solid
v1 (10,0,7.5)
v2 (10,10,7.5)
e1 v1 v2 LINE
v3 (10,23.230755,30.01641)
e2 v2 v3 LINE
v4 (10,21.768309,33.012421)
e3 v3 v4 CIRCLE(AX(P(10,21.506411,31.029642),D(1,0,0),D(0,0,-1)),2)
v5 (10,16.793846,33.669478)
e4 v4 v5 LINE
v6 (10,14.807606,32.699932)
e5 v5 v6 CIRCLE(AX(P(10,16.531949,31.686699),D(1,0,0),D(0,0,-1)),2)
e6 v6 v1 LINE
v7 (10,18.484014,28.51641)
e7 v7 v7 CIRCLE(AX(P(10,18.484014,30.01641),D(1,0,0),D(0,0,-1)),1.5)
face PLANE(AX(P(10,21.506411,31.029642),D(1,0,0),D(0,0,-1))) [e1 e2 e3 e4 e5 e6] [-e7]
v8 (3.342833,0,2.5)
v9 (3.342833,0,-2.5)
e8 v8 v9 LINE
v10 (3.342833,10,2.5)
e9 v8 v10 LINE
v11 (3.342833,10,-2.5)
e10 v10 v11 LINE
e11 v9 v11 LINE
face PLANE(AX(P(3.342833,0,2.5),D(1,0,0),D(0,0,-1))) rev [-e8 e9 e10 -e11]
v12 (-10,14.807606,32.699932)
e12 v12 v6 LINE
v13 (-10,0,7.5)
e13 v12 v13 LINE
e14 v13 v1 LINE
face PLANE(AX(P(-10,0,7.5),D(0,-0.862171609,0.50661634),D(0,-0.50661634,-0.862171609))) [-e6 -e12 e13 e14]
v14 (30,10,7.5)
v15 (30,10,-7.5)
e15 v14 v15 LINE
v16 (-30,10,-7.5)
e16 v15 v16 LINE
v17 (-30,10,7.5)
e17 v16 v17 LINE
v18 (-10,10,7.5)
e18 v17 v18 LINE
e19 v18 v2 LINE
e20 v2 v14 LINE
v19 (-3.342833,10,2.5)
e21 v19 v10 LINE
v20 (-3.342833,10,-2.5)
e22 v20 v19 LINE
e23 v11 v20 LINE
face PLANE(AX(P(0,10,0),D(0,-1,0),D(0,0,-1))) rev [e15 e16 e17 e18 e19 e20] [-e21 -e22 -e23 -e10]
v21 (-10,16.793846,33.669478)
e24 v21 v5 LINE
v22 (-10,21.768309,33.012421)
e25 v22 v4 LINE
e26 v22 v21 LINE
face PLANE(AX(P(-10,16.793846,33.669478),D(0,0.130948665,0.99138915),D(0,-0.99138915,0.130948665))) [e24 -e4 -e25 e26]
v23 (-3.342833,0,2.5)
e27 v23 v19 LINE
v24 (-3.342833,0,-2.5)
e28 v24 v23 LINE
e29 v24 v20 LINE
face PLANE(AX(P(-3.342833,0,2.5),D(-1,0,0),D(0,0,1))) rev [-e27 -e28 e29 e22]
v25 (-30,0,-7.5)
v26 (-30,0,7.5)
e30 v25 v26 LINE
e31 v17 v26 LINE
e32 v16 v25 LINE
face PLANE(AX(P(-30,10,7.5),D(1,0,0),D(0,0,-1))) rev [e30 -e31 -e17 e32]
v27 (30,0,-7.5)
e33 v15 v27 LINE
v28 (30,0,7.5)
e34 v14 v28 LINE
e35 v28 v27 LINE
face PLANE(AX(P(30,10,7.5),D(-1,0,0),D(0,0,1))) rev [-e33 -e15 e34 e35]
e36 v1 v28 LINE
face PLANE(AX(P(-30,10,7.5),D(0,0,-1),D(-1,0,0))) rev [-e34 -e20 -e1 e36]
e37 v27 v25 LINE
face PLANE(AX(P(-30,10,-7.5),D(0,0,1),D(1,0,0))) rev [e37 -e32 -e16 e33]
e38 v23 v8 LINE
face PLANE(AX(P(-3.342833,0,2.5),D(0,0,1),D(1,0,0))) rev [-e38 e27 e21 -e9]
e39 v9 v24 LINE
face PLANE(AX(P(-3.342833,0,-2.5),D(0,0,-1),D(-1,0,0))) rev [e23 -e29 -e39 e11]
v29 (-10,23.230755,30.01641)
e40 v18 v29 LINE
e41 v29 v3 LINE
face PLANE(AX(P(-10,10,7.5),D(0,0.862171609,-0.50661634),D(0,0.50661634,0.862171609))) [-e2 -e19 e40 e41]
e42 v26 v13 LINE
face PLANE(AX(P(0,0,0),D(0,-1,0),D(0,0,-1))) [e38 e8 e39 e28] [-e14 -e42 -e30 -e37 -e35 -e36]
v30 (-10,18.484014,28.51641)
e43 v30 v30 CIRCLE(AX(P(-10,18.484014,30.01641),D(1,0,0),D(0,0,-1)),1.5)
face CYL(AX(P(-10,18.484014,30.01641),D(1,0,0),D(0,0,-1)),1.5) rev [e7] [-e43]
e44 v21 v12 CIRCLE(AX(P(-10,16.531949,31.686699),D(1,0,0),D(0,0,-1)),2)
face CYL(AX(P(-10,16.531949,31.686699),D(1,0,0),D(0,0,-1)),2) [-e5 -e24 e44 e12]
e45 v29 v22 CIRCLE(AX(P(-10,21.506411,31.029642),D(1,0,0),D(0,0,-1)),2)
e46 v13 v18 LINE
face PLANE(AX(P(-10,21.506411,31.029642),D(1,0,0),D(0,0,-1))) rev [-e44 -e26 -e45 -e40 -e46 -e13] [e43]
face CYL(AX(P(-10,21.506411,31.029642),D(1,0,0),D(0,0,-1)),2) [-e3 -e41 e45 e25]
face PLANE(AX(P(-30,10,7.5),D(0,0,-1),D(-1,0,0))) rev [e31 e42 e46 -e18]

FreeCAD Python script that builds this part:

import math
import FreeCAD as App
import Part
import Sketcher
Q = App.Units.Quantity

doc = App.newDocument("Part")
body = doc.addObject("PartDesign::Body", "Body")

# Sketch on XZ plane
sketch1 = doc.addObject("Sketcher::SketchObject", "Sketch")
body.addObject(sketch1)
sketch1.AttachmentSupport = (doc.XZ_Plane, [""])
sketch1.MapMode = "FlatFace"
sketch1.addGeometry(Part.LineSegment(App.Vector(-30, -7.5, 0), App.Vector(-30, 7.5, 0)), False)
sketch1.addGeometry(Part.LineSegment(App.Vector(-30, 7.5, 0), App.Vector(30, 7.5, 0)), False)
sketch1.addGeometry(Part.LineSegment(App.Vector(30, 7.5, 0), App.Vector(30, -7.5, 0)), False)
sketch1.addGeometry(Part.LineSegment(App.Vector(30, -7.5, 0), App.Vector(-30, -7.5, 0)), False)
sketch1.addGeometry(Part.Circle(App.Vector(0, 0, 0), App.Vector(0, 0, 1), 3.6), False)
sketch1.addConstraint(Sketcher.Constraint("Coincident", 0, 2, 1, 1))
sketch1.addConstraint(Sketcher.Constraint("Coincident", 1, 2, 2, 1))
sketch1.addConstraint(Sketcher.Constraint("Coincident", 2, 2, 3, 1))
sketch1.addConstraint(Sketcher.Constraint("Coincident", 3, 2, 0, 1))
sketch1.addConstraint(Sketcher.Constraint("Vertical", 0))
sketch1.addConstraint(Sketcher.Constraint("Horizontal", 1))
sketch1.addConstraint(Sketcher.Constraint("Vertical", 2))
sketch1.addConstraint(Sketcher.Constraint("Horizontal", 3))
sketch1.addConstraint(Sketcher.Constraint("Coincident", 4, 3, -1, 1))
sketch1.addConstraint(Sketcher.Constraint("Symmetric", 0, 2, 2, 2, -1, 1))
sketch1.addConstraint(Sketcher.Constraint("DistanceX", 1, 1, 1, 2, Q("60 mm")))
sketch1.addConstraint(Sketcher.Constraint("DistanceY", 0, 1, 0, 2, Q("15 mm")))
sketch1.addConstraint(Sketcher.Constraint("Diameter", 4, Q("7.288659 mm")))
pad1 = doc.addObject("PartDesign::Pad", "Pad")
body.addObject(pad1)
pad1.Profile = sketch1
pad1.Length = 10
pad1.Reversed = True

# Sketch on YZ plane
sketch2 = doc.addObject("Sketcher::SketchObject", "Sketch001")
body.addObject(sketch2)
sketch2.AttachmentSupport = (doc.YZ_Plane, [""])
sketch2.MapMode = "FlatFace"
sketch2.addGeometry(Part.LineSegment(App.Vector(14.8, 32.7, 0), App.Vector(0, 7.5, 0)), False)
sketch2.addGeometry(Part.LineSegment(App.Vector(0, 7.5, 0), App.Vector(10, 7.5, 0)), False)
sketch2.addGeometry(Part.LineSegment(App.Vector(10, 7.5, 0), App.Vector(23.2, 30, 0)), False)
sketch2.addGeometry(Part.ArcOfCircle(Part.Circle(App.Vector(21.5, 31, 0), App.Vector(0, 0, 1), 2), math.radians(-30), math.radians(82)), False)
sketch2.addGeometry(Part.LineSegment(App.Vector(21.8, 33, 0), App.Vector(16.8, 33.7, 0)), False)
sketch2.addGeometry(Part.ArcOfCircle(Part.Circle(App.Vector(16.5, 31.7, 0), App.Vector(0, 0, 1), 2), math.radians(82), math.radians(150)), False)
sketch2.addGeometry(Part.Circle(App.Vector(18.5, 30, 0), App.Vector(0, 0, 1), 1.5), False)
sketch2.addConstraint(Sketcher.Constraint("Coincident", 0, 2, 1, 1))
sketch2.addConstraint(Sketcher.Constraint("Coincident", 1, 2, 2, 1))
sketch2.addConstraint(Sketcher.Constraint("Tangent", 2, 2, 3, 1))
sketch2.addConstraint(Sketcher.Constraint("Tangent", 3, 2, 4, 1))
sketch2.addConstraint(Sketcher.Constraint("Tangent", 4, 2, 5, 1))
sketch2.addConstraint(Sketcher.Constraint("Tangent", 5, 2, 0, 1))
sketch2.addConstraint(Sketcher.Constraint("Horizontal", 1))
sketch2.addConstraint(Sketcher.Constraint("Equal", 3, 5))
sketch2.addConstraint(Sketcher.Constraint("PointOnObject", 0, 2, -2))
sketch2.addConstraint(Sketcher.Constraint("Parallel", 0, 2))
sketch2.addConstraint(Sketcher.Constraint("Horizontal", 6, 3, 2, 2))
sketch2.addConstraint(Sketcher.Constraint("Diameter", 6, Q("3 mm")))
sketch2.addConstraint(Sketcher.Constraint("Radius", 3, Q("2 mm")))
sketch2.addConstraint(Sketcher.Constraint("DistanceX", 1, 1, 1, 2, Q("10 mm")))
sketch2.addConstraint(Sketcher.Constraint("DistanceY", -1, 1, 0, 2, Q("7.5 mm")))
sketch2.addConstraint(Sketcher.Constraint("DistanceY", -1, 1, 5, 3, Q("31.686699 mm")))
sketch2.addConstraint(Sketcher.Constraint("Distance", 0, Q("29.228441 mm")))
sketch2.addConstraint(Sketcher.Constraint("Distance", 4, Q("5.017669 mm")))
sketch2.addConstraint(Sketcher.Constraint("DistanceX", 6, 3, 2, 2, Q("4.74674 mm")))
pad2 = doc.addObject("PartDesign::Pad", "Pad001")
body.addObject(pad2)
pad2.Profile = sketch2
pad2.Type = "TwoLengths"
pad2.Length = 10
pad2.Length2 = 10

# Sketch on XZ plane
sketch3 = doc.addObject("Sketcher::SketchObject", "Sketch002")
body.addObject(sketch3)
sketch3.AttachmentSupport = (doc.XZ_Plane, [""])
sketch3.MapMode = "FlatFace"
sketch3.AttachmentOffset = App.Placement(App.Vector(0, 0, -10), App.Rotation())
sketch3.addGeometry(Part.LineSegment(App.Vector(-3, -2, 0), App.Vector(-3, 2, 0)), False)
sketch3.addGeometry(Part.LineSegment(App.Vector(-3, 2, 0), App.Vector(3, 2, 0)), False)
sketch3.addGeometry(Part.LineSegment(App.Vector(3, 2, 0), App.Vector(3, -2, 0)), False)
sketch3.addGeometry(Part.LineSegment(App.Vector(3, -2, 0), App.Vector(-3, -2, 0)), False)
sketch3.addConstraint(Sketcher.Constraint("Coincident", 0, 2, 1, 1))
sketch3.addConstraint(Sketcher.Constraint("Coincident", 1, 2, 2, 1))
sketch3.addConstraint(Sketcher.Constraint("Coincident", 2, 2, 3, 1))
sketch3.addConstraint(Sketcher.Constraint("Coincident", 3, 2, 0, 1))
sketch3.addConstraint(Sketcher.Constraint("Vertical", 0))
sketch3.addConstraint(Sketcher.Constraint("Horizontal", 1))
sketch3.addConstraint(Sketcher.Constraint("Vertical", 2))
sketch3.addConstraint(Sketcher.Constraint("Horizontal", 3))
sketch3.addConstraint(Sketcher.Constraint("Symmetric", 0, 2, 2, 2, -1, 1))
sketch3.addConstraint(Sketcher.Constraint("DistanceY", 0, 1, 0, 2, Q("5 mm")))
sketch3.addConstraint(Sketcher.Constraint("DistanceX", 1, 1, 1, 2, Q("6.685665 mm")))
pocket1 = doc.addObject("PartDesign::Pocket", "Pocket")
body.addObject(pocket1)
pocket1.Profile = sketch3
pocket1.Length = 10
pocket1.Reversed = True

# Sketch on XZ plane
sketch4 = doc.addObject("Sketcher::SketchObject", "Sketch003")
body.addObject(sketch4)
sketch4.AttachmentSupport = (doc.XZ_Plane, [""])
sketch4.MapMode = "FlatFace"
sketch4.AttachmentOffset = App.Placement(App.Vector(0, 0, -10), App.Rotation())
sketch4.addGeometry(Part.LineSegment(App.Vector(-2.65, -2.5, 0), App.Vector(2.65, -2.5, 0)), False)
sketch4.addGeometry(Part.LineSegment(App.Vector(2.65, -2.5, 0), App.Vector(-0.9, -6.61, 0)), False)
sketch4.addGeometry(Part.LineSegment(App.Vector(-0.9, -6.61, 0), App.Vector(-2.65, -2.5, 0)), False)
sketch4.addGeometry(Part.LineSegment(App.Vector(-3.34, 1.45, 0), App.Vector(-3.34, -1.45, 0)), False)
sketch4.addGeometry(Part.LineSegment(App.Vector(-3.34, -1.45, 0), App.Vector(-3.66, -1.45, 0)), False)
sketch4.addGeometry(Part.LineSegment(App.Vector(-3.66, -1.45, 0), App.Vector(-3.98, 1.23, 0)), False)
sketch4.addGeometry(Part.LineSegment(App.Vector(-3.98, 1.23, 0), App.Vector(-3.34, 1.45, 0)), False)
sketch4.addGeometry(Part.LineSegment(App.Vector(3.34, -1.45, 0), App.Vector(3.34, 1.45, 0)), False)
sketch4.addGeometry(Part.LineSegment(App.Vector(3.34, 1.45, 0), App.Vector(4.45, 1.23, 0)), False)
sketch4.addGeometry(Part.LineSegment(App.Vector(4.45, 1.23, 0), App.Vector(3.97, -1.14, 0)), False)
sketch4.addGeometry(Part.LineSegment(App.Vector(3.97, -1.14, 0), App.Vector(3.34, -1.45, 0)), False)
sketch4.addGeometry(Part.LineSegment(App.Vector(2.65, 2.5, 0), App.Vector(-2.65, 2.5, 0)), False)
sketch4.addGeometry(Part.LineSegment(App.Vector(-2.65, 2.5, 0), App.Vector(-2.37, 3.9, 0)), False)
sketch4.addGeometry(Part.LineSegment(App.Vector(-2.37, 3.9, 0), App.Vector(1.66, 4.07, 0)), False)
sketch4.addGeometry(Part.LineSegment(App.Vector(1.66, 4.07, 0), App.Vector(2.65, 2.5, 0)), False)
sketch4.addConstraint(Sketcher.Constraint("Coincident", 0, 2, 1, 1))
sketch4.addConstraint(Sketcher.Constraint("Coincident", 1, 2, 2, 1))
sketch4.addConstraint(Sketcher.Constraint("Coincident", 2, 2, 0, 1))
sketch4.addConstraint(Sketcher.Constraint("Coincident", 3, 2, 4, 1))
sketch4.addConstraint(Sketcher.Constraint("Coincident", 4, 2, 5, 1))
sketch4.addConstraint(Sketcher.Constraint("Coincident", 5, 2, 6, 1))
sketch4.addConstraint(Sketcher.Constraint("Coincident", 6, 2, 3, 1))
sketch4.addConstraint(Sketcher.Constraint("Coincident", 7, 2, 8, 1))
sketch4.addConstraint(Sketcher.Constraint("Coincident", 8, 2, 9, 1))
sketch4.addConstraint(Sketcher.Constraint("Coincident", 9, 2, 10, 1))
sketch4.addConstraint(Sketcher.Constraint("Coincident", 10, 2, 7, 1))
sketch4.addConstraint(Sketcher.Constraint("Coincident", 11, 2, 12, 1))
sketch4.addConstraint(Sketcher.Constraint("Coincident", 12, 2, 13, 1))
sketch4.addConstraint(Sketcher.Constraint("Coincident", 13, 2, 14, 1))
sketch4.addConstraint(Sketcher.Constraint("Coincident", 14, 2, 11, 1))
sketch4.addConstraint(Sketcher.Constraint("Horizontal", 0))
sketch4.addConstraint(Sketcher.Constraint("Vertical", 3))
sketch4.addConstraint(Sketcher.Constraint("Horizontal", 4))
sketch4.addConstraint(Sketcher.Constraint("Vertical", 7))
sketch4.addConstraint(Sketcher.Constraint("Horizontal", 11))
sketch4.addConstraint(Sketcher.Constraint("Symmetric", 3, 2, 7, 2, -1, 1))
sketch4.addConstraint(Sketcher.Constraint("Symmetric", 0, 2, 11, 2, -1, 1))
sketch4.addConstraint(Sketcher.Constraint("Perpendicular", 8, 9))
sketch4.addConstraint(Sketcher.Constraint("Parallel", 9, 12))
sketch4.addConstraint(Sketcher.Constraint("Horizontal", 6, 2, 7, 2))
sketch4.addConstraint(Sketcher.Constraint("Horizontal", 5, 2, 8, 2))
sketch4.addConstraint(Sketcher.Constraint("Horizontal", 4, 2, 10, 2))
sketch4.addConstraint(Sketcher.Constraint("Vertical", 2, 2, 11, 2))
sketch4.addConstraint(Sketcher.Constraint("Vertical", 0, 2, 14, 2))
sketch4.addConstraint(Sketcher.Constraint("DistanceY", 2, 2, 11, 2, Q("5 mm")))
sketch4.addConstraint(Sketcher.Constraint("DistanceX", 4, 2, 4, 1, Q("0.3207 mm")))
sketch4.addConstraint(Sketcher.Constraint("Distance", 10, Q("0.6994 mm")))
sketch4.addConstraint(Sketcher.Constraint("DistanceX", 0, 1, 0, 2, Q("5.303258 mm")))
sketch4.addConstraint(Sketcher.Constraint("DistanceY", 3, 2, 3, 1, Q("2.902831 mm")))
sketch4.addConstraint(Sketcher.Constraint("DistanceX", 5, 2, 4, 2, Q("0.3207 mm")))
sketch4.addConstraint(Sketcher.Constraint("DistanceX", 6, 2, 12, 2, Q("0.971498 mm")))
sketch4.addConstraint(Sketcher.Constraint("DistanceX", 13, 2, 7, 2, Q("1.681502 mm")))
sketch4.addConstraint(Sketcher.Constraint("DistanceX", 13, 2, 14, 2, Q("0.990298 mm")))
sketch4.addConstraint(Sketcher.Constraint("Distance", 5, Q("2.700262 mm")))
sketch4.addConstraint(Sketcher.Constraint("Distance", 8, Q("1.126781 mm")))
sketch4.addConstraint(Sketcher.Constraint("DistanceX", 1, 2, -1, 1, Q("0.901511 mm")))
sketch4.addConstraint(Sketcher.Constraint("DistanceY", -1, 1, 13, 2, Q("4.071091 mm")))
sketch4.addConstraint(Sketcher.Constraint("DistanceY", 1, 2, 3, 2, Q("5.162281 mm")))
pad3 = doc.addObject("PartDesign::Pad", "Pad002")
body.addObject(pad3)
pad3.Profile = sketch4
pad3.Length = 10

doc.recompute()
